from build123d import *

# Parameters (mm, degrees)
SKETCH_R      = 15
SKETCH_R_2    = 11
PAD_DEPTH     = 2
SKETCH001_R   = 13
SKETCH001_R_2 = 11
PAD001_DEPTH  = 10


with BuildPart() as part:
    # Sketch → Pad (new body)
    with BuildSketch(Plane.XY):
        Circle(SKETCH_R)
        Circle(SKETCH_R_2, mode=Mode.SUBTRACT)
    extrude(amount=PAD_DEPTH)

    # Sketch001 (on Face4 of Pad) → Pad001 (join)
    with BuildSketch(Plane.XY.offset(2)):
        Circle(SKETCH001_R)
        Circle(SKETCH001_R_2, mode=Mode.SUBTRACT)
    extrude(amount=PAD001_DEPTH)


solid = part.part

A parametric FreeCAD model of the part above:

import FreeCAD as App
import Part
import Sketcher

V = App.Vector

doc = App.newDocument("Part")
body = doc.addObject("PartDesign::Body", "Body")

sketch1 = body.newObject("Sketcher::SketchObject", "Sketch")
sketch1.AttachmentSupport = (doc.getObject("XY_Plane"), [""])
sketch1.MapMode = "FlatFace"
sketch1.addGeometry(Part.Circle(V(0, 0, 0), V(0, 0, 1), 15), False)
sketch1.addGeometry(Part.Circle(V(0, 0, 0), V(0, 0, 1), 11), False)
sketch1.addConstraint(Sketcher.Constraint("Coincident", 0, 3, -1, 1))
sketch1.addConstraint(Sketcher.Constraint("Coincident", 1, 3, -1, 1))
sketch1.addConstraint(Sketcher.Constraint("Diameter", 0, 30.0))
sketch1.addConstraint(Sketcher.Constraint("Diameter", 1, 22.0))
pad1 = body.newObject("PartDesign::Pad", "Pad")
pad1.Profile = sketch1
pad1.Length = 2

sketch2 = body.newObject("Sketcher::SketchObject", "Sketch001")
sketch2.AttachmentSupport = (doc.getObject("XY_Plane"), [""])
sketch2.MapMode = "FlatFace"
sketch2.AttachmentOffset = App.Placement(V(0, 0, 2), App.Rotation())
sketch2.addGeometry(Part.Circle(V(0, 0, 0), V(0, 0, 1), 13), False)
sketch2.addGeometry(Part.Circle(V(0, 0, 0), V(0, 0, 1), 11), False)
sketch2.addConstraint(Sketcher.Constraint("Coincident", 0, 3, -1, 1))
sketch2.addConstraint(Sketcher.Constraint("Coincident", 1, 3, -1, 1))
sketch2.addConstraint(Sketcher.Constraint("Diameter", 0, 26.0))
sketch2.addConstraint(Sketcher.Constraint("Diameter", 1, 22.0))
pad2 = body.newObject("PartDesign::Pad", "Pad001")
pad2.Profile = sketch2
pad2.Length = 10

doc.recompute()
